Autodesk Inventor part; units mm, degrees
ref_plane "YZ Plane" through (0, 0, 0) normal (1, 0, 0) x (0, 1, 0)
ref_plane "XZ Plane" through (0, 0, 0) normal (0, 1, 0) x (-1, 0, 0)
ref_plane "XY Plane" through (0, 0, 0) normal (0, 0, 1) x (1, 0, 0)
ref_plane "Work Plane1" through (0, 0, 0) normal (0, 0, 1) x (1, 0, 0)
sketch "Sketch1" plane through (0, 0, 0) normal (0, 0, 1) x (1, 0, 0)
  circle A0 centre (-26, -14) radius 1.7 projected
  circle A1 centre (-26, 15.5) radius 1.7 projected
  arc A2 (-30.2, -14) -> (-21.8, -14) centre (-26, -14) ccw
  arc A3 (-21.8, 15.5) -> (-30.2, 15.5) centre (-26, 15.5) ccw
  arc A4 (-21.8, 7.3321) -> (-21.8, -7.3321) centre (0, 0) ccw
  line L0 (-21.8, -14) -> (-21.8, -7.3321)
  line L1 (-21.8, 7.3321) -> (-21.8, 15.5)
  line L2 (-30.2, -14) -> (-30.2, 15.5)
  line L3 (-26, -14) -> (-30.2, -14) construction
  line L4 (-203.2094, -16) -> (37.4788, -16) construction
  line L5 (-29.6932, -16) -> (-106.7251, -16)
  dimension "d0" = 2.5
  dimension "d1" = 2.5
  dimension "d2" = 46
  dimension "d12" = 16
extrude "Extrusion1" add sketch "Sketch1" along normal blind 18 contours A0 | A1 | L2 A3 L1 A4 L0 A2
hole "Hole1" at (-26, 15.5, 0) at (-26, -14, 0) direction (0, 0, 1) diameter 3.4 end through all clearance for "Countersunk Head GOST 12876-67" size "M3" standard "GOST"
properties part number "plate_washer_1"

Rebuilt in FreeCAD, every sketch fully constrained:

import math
import FreeCAD as App
import Part
import Sketcher

V = App.Vector
Q = App.Units.Quantity

doc = App.newDocument("Part")
body = doc.addObject("PartDesign::Body", "Body")

sketch1 = body.newObject("Sketcher::SketchObject", "Sketch")
sketch1.AttachmentSupport = (doc.getObject("XY_Plane"), [""])
sketch1.MapMode = "FlatFace"
sketch1.addGeometry([
    Part.LineSegment(V(-30.2, 15.5, 0), V(-30.2, -14, 0)),
    Part.ArcOfCircle(Part.Circle(V(-26, -14, 0), V(0, 0, 1), 4.2), math.radians(180), math.radians(360)),
    Part.LineSegment(V(-21.8, -14, 0), V(-21.8, -7.3, 0)),
    Part.ArcOfCircle(Part.Circle(V(0, 0, 0), V(0, 0, 1), 23), math.radians(161), math.radians(199)),
    Part.LineSegment(V(-21.8, 7.3, 0), V(-21.8, 15.5, 0)),
    Part.ArcOfCircle(Part.Circle(V(-26, 15.5, 0), V(0, 0, 1), 4.2), math.radians(0), math.radians(180)),
], False)
sketch1.addConstraint([
    Sketcher.Constraint("Tangent", 0, 2, 1, 1),
    Sketcher.Constraint("Tangent", 1, 2, 2, 1),
    Sketcher.Constraint("Coincident", 2, 2, 3, 2),
    Sketcher.Constraint("Coincident", 3, 1, 4, 1),
    Sketcher.Constraint("Tangent", 4, 2, 5, 1),
    Sketcher.Constraint("Tangent", 5, 2, 0, 1),
    Sketcher.Constraint("Vertical", 0),
    Sketcher.Constraint("Vertical", 2),
    Sketcher.Constraint("Vertical", 4),
    Sketcher.Constraint("Coincident", 3, 3, -1, 1),
    Sketcher.Constraint("Equal", 1, 5),
    Sketcher.Constraint("Radius", 3, Q("23 mm")),
    Sketcher.Constraint("Radius", 1, Q("4.2 mm")),
    Sketcher.Constraint("DistanceY", 0, 2, 0, 1, Q("29.5 mm")),
    Sketcher.Constraint("DistanceX", 1, 3, -1, 1, Q("26 mm")),
    Sketcher.Constraint("DistanceY", 1, 3, -1, 1, Q("14 mm")),
])
pad1 = body.newObject("PartDesign::Pad", "Pad")
pad1.Profile = sketch1
pad1.Length = 18

sketch2 = body.newObject("Sketcher::SketchObject", "Sketch001")
sketch2.AttachmentSupport = (doc.getObject("XY_Plane"), [""])
sketch2.MapMode = "FlatFace"
sketch2.addGeometry([
    Part.Circle(V(-26, 15.5, 0), V(0, 0, 1), 1.7),
    Part.Circle(V(-26, -14, 0), V(0, 0, 1), 1.7),
], False)
sketch2.addConstraint([
    Sketcher.Constraint("Equal", 0, 1),
    Sketcher.Constraint("Vertical", 0, 3, 1, 3),
    Sketcher.Constraint("Diameter", 0, Q("3.4 mm")),
    Sketcher.Constraint("DistanceX", 0, 3, -1, 1, Q("26 mm")),
    Sketcher.Constraint("DistanceY", 1, 3, -1, 1, Q("14 mm")),
    Sketcher.Constraint("DistanceY", -1, 1, 0, 3, Q("15.5 mm")),
])
doc.recompute()
hole = body.newObject("PartDesign::Hole", "Hole")
hole.Profile = sketch2
hole.ThreadType = "None"
hole.Diameter = 3.4
hole.DepthType = "ThroughAll"
hole.Reversed = True

doc.recompute()
